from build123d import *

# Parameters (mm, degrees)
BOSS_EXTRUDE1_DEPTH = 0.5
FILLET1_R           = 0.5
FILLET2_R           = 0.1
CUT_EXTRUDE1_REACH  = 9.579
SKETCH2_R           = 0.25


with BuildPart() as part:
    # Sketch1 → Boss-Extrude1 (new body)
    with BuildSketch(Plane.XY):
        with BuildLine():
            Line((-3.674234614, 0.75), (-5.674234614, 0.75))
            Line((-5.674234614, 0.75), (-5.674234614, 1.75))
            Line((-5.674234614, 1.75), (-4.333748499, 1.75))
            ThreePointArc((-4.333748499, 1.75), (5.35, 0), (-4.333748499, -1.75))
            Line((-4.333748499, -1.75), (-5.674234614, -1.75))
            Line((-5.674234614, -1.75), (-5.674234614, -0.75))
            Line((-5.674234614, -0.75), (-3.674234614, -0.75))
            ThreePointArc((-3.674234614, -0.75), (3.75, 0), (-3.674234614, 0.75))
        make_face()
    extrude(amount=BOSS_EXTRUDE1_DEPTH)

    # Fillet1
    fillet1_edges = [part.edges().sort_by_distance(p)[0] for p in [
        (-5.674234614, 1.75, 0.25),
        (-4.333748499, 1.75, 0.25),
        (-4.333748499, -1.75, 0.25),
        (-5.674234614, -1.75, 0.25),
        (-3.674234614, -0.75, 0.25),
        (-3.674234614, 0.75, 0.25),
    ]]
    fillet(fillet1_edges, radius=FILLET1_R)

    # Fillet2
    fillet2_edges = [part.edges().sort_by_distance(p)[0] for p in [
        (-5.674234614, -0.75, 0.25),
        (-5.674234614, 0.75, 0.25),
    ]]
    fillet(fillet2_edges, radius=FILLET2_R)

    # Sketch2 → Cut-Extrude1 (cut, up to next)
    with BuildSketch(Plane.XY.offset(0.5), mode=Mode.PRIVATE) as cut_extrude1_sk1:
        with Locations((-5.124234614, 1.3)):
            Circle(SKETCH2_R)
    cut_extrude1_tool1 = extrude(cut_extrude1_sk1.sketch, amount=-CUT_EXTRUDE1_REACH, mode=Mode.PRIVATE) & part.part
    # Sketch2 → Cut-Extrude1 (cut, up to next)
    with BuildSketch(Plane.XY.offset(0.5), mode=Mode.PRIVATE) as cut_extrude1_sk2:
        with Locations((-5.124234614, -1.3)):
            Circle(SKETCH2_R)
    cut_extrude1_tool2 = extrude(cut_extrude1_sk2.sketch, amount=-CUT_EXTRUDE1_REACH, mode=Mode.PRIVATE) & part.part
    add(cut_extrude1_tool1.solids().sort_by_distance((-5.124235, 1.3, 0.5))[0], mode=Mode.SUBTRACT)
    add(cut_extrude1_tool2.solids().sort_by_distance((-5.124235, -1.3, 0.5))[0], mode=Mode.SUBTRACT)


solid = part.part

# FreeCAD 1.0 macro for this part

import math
import FreeCAD as App
import Part
import Sketcher
Q = App.Units.Quantity


def edges_at(feature, points):
    """Names of the edges that pass closest to the given points."""
    edges = feature.Shape.Edges
    near = lambda p: min(range(len(edges)), key=lambda i: edges[i].distToShape(Part.Vertex(*p))[0])
    return sorted({f"Edge{near(p) + 1}" for p in points})

doc = App.newDocument("Part")
body = doc.addObject("PartDesign::Body", "Body")

sketch1 = body.newObject("Sketcher::SketchObject", "Sketch")
sketch1.AttachmentSupport = (doc.getObject("XY_Plane"), [""])
sketch1.MapMode = "FlatFace"
sketch1.addGeometry([
    Part.LineSegment(App.Vector(-5.674235, 0.75, 0), App.Vector(-3.674235, 0.75, 0)),
    Part.ArcOfCircle(Part.Circle(App.Vector(0, 0, 0), App.Vector(0, 0, 1), 3.75), math.radians(-168.463041), math.radians(168.463041)),
    Part.LineSegment(App.Vector(-3.674235, -0.75, 0), App.Vector(-5.674235, -0.75, 0)),
    Part.LineSegment(App.Vector(-5.674235, -0.75, 0), App.Vector(-5.674235, -1.75, 0)),
    Part.LineSegment(App.Vector(-5.674235, -1.75, 0), App.Vector(-4.333748, -1.75, 0)),
    Part.ArcOfCircle(Part.Circle(App.Vector(0.35, 0, 0), App.Vector(0, 0, 1), 5), math.radians(-159.512685), math.radians(159.512685)),
    Part.LineSegment(App.Vector(-4.333748, 1.75, 0), App.Vector(-5.674235, 1.75, 0)),
    Part.LineSegment(App.Vector(-5.674235, 1.75, 0), App.Vector(-5.674235, 0.75, 0)),
], False)
sketch1.addConstraint([
    Sketcher.Constraint("Coincident", 0, 2, 1, 2),
    Sketcher.Constraint("Coincident", 1, 1, 2, 1),
    Sketcher.Constraint("Coincident", 2, 2, 3, 1),
    Sketcher.Constraint("Coincident", 3, 2, 4, 1),
    Sketcher.Constraint("Coincident", 4, 2, 5, 1),
    Sketcher.Constraint("Coincident", 5, 2, 6, 1),
    Sketcher.Constraint("Coincident", 6, 2, 7, 1),
    Sketcher.Constraint("Coincident", 7, 2, 0, 1),
    Sketcher.Constraint("Horizontal", 0),
    Sketcher.Constraint("Horizontal", 2),
    Sketcher.Constraint("Vertical", 3),
    Sketcher.Constraint("Horizontal", 4),
    Sketcher.Constraint("Horizontal", 6),
    Sketcher.Constraint("Vertical", 7),
    Sketcher.Constraint("Coincident", 1, 3, -1, 1),
    Sketcher.Constraint("Symmetric", 4, 2, 5, 2, -1),
    Sketcher.Constraint("Symmetric", 2, 2, 7, 2, -1),
    Sketcher.Constraint("Radius", 5, Q("5 mm")),
    Sketcher.Constraint("DistanceX", 0, 1, 0, 2, Q("2 mm")),
    Sketcher.Constraint("DistanceY", 3, 2, 3, 1, Q("1 mm")),
    Sketcher.Constraint("Radius", 1, Q("3.75 mm")),
    Sketcher.Constraint("DistanceY", 1, 1, 0, 2, Q("1.5 mm")),
    Sketcher.Constraint("DistanceX", -1, 1, 5, 3, Q("0.35 mm")),
])
pad1 = body.newObject("PartDesign::Pad", "Pad")
pad1.Profile = sketch1
pad1.Length = 0.5
doc.recompute()

fillet = body.newObject("PartDesign::Fillet", "Fillet")
fillet.Base = (pad1, edges_at(pad1, [
    (-5.674, 1.75, 0.25),
    (-4.334, 1.75, 0.25),
    (-4.334, -1.75, 0.25),
    (-5.674, -1.75, 0.25),
    (-3.674, -0.75, 0.25),
    (-3.674, 0.75, 0.25),
]))
fillet.Radius = 0.5
doc.recompute()

fillet2 = body.newObject("PartDesign::Fillet", "Fillet001")
fillet2.Base = (fillet, edges_at(fillet, [(-5.674, -0.75, 0.25), (-5.674, 0.75, 0.25)]))
fillet2.Radius = 0.1

sketch2 = body.newObject("Sketcher::SketchObject", "Sketch001")
sketch2.AttachmentSupport = (doc.getObject("XY_Plane"), [""])
sketch2.MapMode = "FlatFace"
sketch2.AttachmentOffset = App.Placement(App.Vector(0, 0, 0.5), App.Rotation())
sketch2.addGeometry(Part.Circle(App.Vector(-5.124235, 1.3, 0), App.Vector(0, 0, 1), 0.25), False)
sketch2.addConstraint([
    Sketcher.Constraint("Diameter", 0, Q("0.5 mm")),
    Sketcher.Constraint("DistanceY", -1, 1, 0, 3, Q("1.3 mm")),
    Sketcher.Constraint("DistanceX", 0, 3, -1, 1, Q("5.124235 mm")),
])
pocket1 = body.newObject("PartDesign::Pocket", "Pocket")
pocket1.Profile = sketch2
pocket1.Type = "UpToFirst"

sketch3 = body.newObject("Sketcher::SketchObject", "Sketch002")
sketch3.AttachmentSupport = (doc.getObject("XY_Plane"), [""])
sketch3.MapMode = "FlatFace"
sketch3.AttachmentOffset = App.Placement(App.Vector(0, 0, 0.5), App.Rotation())
sketch3.addGeometry(Part.Circle(App.Vector(-5.124235, -1.3, 0), App.Vector(0, 0, 1), 0.25), False)
sketch3.addConstraint([
    Sketcher.Constraint("Diameter", 0, Q("0.5 mm")),
    Sketcher.Constraint("DistanceY", 0, 3, -1, 1, Q("1.3 mm")),
    Sketcher.Constraint("DistanceX", 0, 3, -1, 1, Q("5.124235 mm")),
])
pocket2 = body.newObject("PartDesign::Pocket", "Pocket001")
pocket2.Profile = sketch3
pocket2.Type = "UpToFirst"

doc.recompute()
